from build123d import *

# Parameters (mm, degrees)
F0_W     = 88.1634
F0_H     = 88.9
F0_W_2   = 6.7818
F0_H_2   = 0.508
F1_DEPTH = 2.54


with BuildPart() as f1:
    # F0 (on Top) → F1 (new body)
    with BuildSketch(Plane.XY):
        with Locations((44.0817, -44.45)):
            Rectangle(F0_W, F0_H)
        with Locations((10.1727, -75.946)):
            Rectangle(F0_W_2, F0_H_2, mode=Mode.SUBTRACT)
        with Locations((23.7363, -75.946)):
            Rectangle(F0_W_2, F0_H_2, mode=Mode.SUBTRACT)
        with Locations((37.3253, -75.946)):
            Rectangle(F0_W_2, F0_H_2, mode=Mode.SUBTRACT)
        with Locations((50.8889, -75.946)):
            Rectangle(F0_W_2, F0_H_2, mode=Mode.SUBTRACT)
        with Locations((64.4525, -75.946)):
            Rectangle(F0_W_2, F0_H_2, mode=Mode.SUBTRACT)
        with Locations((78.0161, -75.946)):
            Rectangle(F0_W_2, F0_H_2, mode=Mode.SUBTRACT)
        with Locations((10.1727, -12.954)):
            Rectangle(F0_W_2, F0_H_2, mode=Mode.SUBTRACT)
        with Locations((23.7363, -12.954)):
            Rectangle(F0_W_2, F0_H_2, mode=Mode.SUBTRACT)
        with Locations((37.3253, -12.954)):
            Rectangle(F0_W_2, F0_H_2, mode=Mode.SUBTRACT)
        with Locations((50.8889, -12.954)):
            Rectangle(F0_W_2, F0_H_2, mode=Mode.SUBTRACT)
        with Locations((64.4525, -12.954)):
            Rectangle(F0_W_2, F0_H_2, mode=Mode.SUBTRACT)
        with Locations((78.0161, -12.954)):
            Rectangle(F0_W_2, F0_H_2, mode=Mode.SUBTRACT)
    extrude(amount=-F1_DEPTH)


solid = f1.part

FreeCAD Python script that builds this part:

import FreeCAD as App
import Part
import Sketcher
from FreeCAD import Vector
Q = App.Units.Quantity


def add_polygon(sketch, points):
    """Adds a closed chain of lines whose ends are joined by coincident constraints."""
    first, n = sketch.GeometryCount, len(points)
    for a, b in zip(points, points[1:] + points[:1]):
        sketch.addGeometry(Part.LineSegment(App.Vector(*a, 0), App.Vector(*b, 0)), False)
    for i in range(n):
        sketch.addConstraint(Sketcher.Constraint("Coincident", first + i, 2, first + (i + 1) % n, 1))

doc = App.newDocument("Part")
body = doc.addObject("PartDesign::Body", "Body")

# Sketch on XY plane
sketch1 = doc.addObject("Sketcher::SketchObject", "Sketch")
body.addObject(sketch1)
sketch1.AttachmentSupport = (doc.XY_Plane, [""])
sketch1.MapMode = "FlatFace"
add_polygon(sketch1, [(0, 0), (0, -88.9), (88.2, -88.9), (88.2, 0)])  # lines 0-3
add_polygon(sketch1, [(13.6, -76.2), (6.8, -76.2), (6.8, -75.7), (13.6, -75.7)])  # lines 4-7
add_polygon(sketch1, [(27.1, -76.2), (20.3, -76.2), (20.3, -75.7), (27.1, -75.7)])  # lines 8-11
add_polygon(sketch1, [(40.7, -76.2), (33.9, -76.2), (33.9, -75.7), (40.7, -75.7)])  # lines 12-15
add_polygon(sketch1, [(54.3, -76.2), (47.5, -76.2), (47.5, -75.7), (54.3, -75.7)])  # lines 16-19
add_polygon(sketch1, [(67.8, -76.2), (61.1, -76.2), (61.1, -75.7), (67.8, -75.7)])  # lines 20-23
add_polygon(sketch1, [(81.4, -76.2), (74.6, -76.2), (74.6, -75.7), (81.4, -75.7)])  # lines 24-27
add_polygon(sketch1, [(13.6, -13.2), (6.8, -13.2), (6.8, -12.7), (13.6, -12.7)])  # lines 28-31
add_polygon(sketch1, [(27.1, -13.2), (20.3, -13.2), (20.3, -12.7), (27.1, -12.7)])  # lines 32-35
add_polygon(sketch1, [(40.7, -13.2), (33.9, -13.2), (33.9, -12.7), (40.7, -12.7)])  # lines 36-39
add_polygon(sketch1, [(54.3, -13.2), (47.5, -13.2), (47.5, -12.7), (54.3, -12.7)])  # lines 40-43
add_polygon(sketch1, [(67.8, -13.2), (61.1, -13.2), (61.1, -12.7), (67.8, -12.7)])  # lines 44-47
add_polygon(sketch1, [(81.4, -13.2), (74.6, -13.2), (74.6, -12.7), (81.4, -12.7)])  # lines 48-51
sketch1.addConstraint(Sketcher.Constraint("Vertical", 0))
sketch1.addConstraint(Sketcher.Constraint("Horizontal", 1))
sketch1.addConstraint(Sketcher.Constraint("Vertical", 2))
sketch1.addConstraint(Sketcher.Constraint("Horizontal", 3))
sketch1.addConstraint(Sketcher.Constraint("Horizontal", 4))
sketch1.addConstraint(Sketcher.Constraint("Vertical", 5))
sketch1.addConstraint(Sketcher.Constraint("Horizontal", 6))
sketch1.addConstraint(Sketcher.Constraint("Vertical", 7))
sketch1.addConstraint(Sketcher.Constraint("Horizontal", 8))
sketch1.addConstraint(Sketcher.Constraint("Vertical", 9))
sketch1.addConstraint(Sketcher.Constraint("Horizontal", 10))
sketch1.addConstraint(Sketcher.Constraint("Vertical", 11))
sketch1.addConstraint(Sketcher.Constraint("Horizontal", 12))
sketch1.addConstraint(Sketcher.Constraint("Vertical", 13))
sketch1.addConstraint(Sketcher.Constraint("Horizontal", 14))
sketch1.addConstraint(Sketcher.Constraint("Vertical", 15))
sketch1.addConstraint(Sketcher.Constraint("Horizontal", 16))
sketch1.addConstraint(Sketcher.Constraint("Vertical", 17))
sketch1.addConstraint(Sketcher.Constraint("Horizontal", 18))
sketch1.addConstraint(Sketcher.Constraint("Vertical", 19))
sketch1.addConstraint(Sketcher.Constraint("Horizontal", 20))
sketch1.addConstraint(Sketcher.Constraint("Vertical", 21))
sketch1.addConstraint(Sketcher.Constraint("Horizontal", 22))
sketch1.addConstraint(Sketcher.Constraint("Vertical", 23))
sketch1.addConstraint(Sketcher.Constraint("Horizontal", 24))
sketch1.addConstraint(Sketcher.Constraint("Vertical", 25))
sketch1.addConstraint(Sketcher.Constraint("Horizontal", 26))
sketch1.addConstraint(Sketcher.Constraint("Vertical", 27))
sketch1.addConstraint(Sketcher.Constraint("Horizontal", 28))
sketch1.addConstraint(Sketcher.Constraint("Vertical", 29))
sketch1.addConstraint(Sketcher.Constraint("Horizontal", 30))
sketch1.addConstraint(Sketcher.Constraint("Vertical", 31))
sketch1.addConstraint(Sketcher.Constraint("Horizontal", 32))
sketch1.addConstraint(Sketcher.Constraint("Vertical", 33))
sketch1.addConstraint(Sketcher.Constraint("Horizontal", 34))
sketch1.addConstraint(Sketcher.Constraint("Vertical", 35))
sketch1.addConstraint(Sketcher.Constraint("Horizontal", 36))
sketch1.addConstraint(Sketcher.Constraint("Vertical", 37))
sketch1.addConstraint(Sketcher.Constraint("Horizontal", 38))
sketch1.addConstraint(Sketcher.Constraint("Vertical", 39))
sketch1.addConstraint(Sketcher.Constraint("Horizontal", 40))
sketch1.addConstraint(Sketcher.Constraint("Vertical", 41))
sketch1.addConstraint(Sketcher.Constraint("Horizontal", 42))
sketch1.addConstraint(Sketcher.Constraint("Vertical", 43))
sketch1.addConstraint(Sketcher.Constraint("Horizontal", 44))
sketch1.addConstraint(Sketcher.Constraint("Vertical", 45))
sketch1.addConstraint(Sketcher.Constraint("Horizontal", 46))
sketch1.addConstraint(Sketcher.Constraint("Vertical", 47))
sketch1.addConstraint(Sketcher.Constraint("Horizontal", 48))
sketch1.addConstraint(Sketcher.Constraint("Vertical", 49))
sketch1.addConstraint(Sketcher.Constraint("Horizontal", 50))
sketch1.addConstraint(Sketcher.Constraint("Vertical", 51))
sketch1.addConstraint(Sketcher.Constraint("Coincident", 3, 2, -1, 1))
sketch1.addConstraint(Sketcher.Constraint("Horizontal", 7, 2, 8, 2))
sketch1.addConstraint(Sketcher.Constraint("Horizontal", 6, 2, 9, 2))
sketch1.addConstraint(Sketcher.Constraint("Horizontal", 11, 2, 12, 2))
sketch1.addConstraint(Sketcher.Constraint("Horizontal", 10, 2, 13, 2))
sketch1.addConstraint(Sketcher.Constraint("Horizontal", 15, 2, 16, 2))
sketch1.addConstraint(Sketcher.Constraint("Horizontal", 14, 2, 17, 2))
sketch1.addConstraint(Sketcher.Constraint("Horizontal", 19, 2, 20, 2))
sketch1.addConstraint(Sketcher.Constraint("Horizontal", 18, 2, 21, 2))
sketch1.addConstraint(Sketcher.Constraint("Horizontal", 23, 2, 24, 2))
sketch1.addConstraint(Sketcher.Constraint("Horizontal", 22, 2, 25, 2))
sketch1.addConstraint(Sketcher.Constraint("Horizontal", 31, 2, 32, 2))
sketch1.addConstraint(Sketcher.Constraint("Horizontal", 30, 2, 33, 2))
sketch1.addConstraint(Sketcher.Constraint("Horizontal", 35, 2, 36, 2))
sketch1.addConstraint(Sketcher.Constraint("Horizontal", 34, 2, 37, 2))
sketch1.addConstraint(Sketcher.Constraint("Horizontal", 39, 2, 40, 2))
sketch1.addConstraint(Sketcher.Constraint("Horizontal", 38, 2, 41, 2))
sketch1.addConstraint(Sketcher.Constraint("Horizontal", 43, 2, 44, 2))
sketch1.addConstraint(Sketcher.Constraint("Horizontal", 42, 2, 45, 2))
sketch1.addConstraint(Sketcher.Constraint("Horizontal", 47, 2, 48, 2))
sketch1.addConstraint(Sketcher.Constraint("Horizontal", 46, 2, 49, 2))
sketch1.addConstraint(Sketcher.Constraint("Vertical", 5, 2, 28, 2))
sketch1.addConstraint(Sketcher.Constraint("Vertical", 7, 2, 30, 2))
sketch1.addConstraint(Sketcher.Constraint("Vertical", 9, 2, 32, 2))
sketch1.addConstraint(Sketcher.Constraint("Vertical", 11, 2, 34, 2))
sketch1.addConstraint(Sketcher.Constraint("Vertical", 13, 2, 36, 2))
sketch1.addConstraint(Sketcher.Constraint("Vertical", 15, 2, 38, 2))
sketch1.addConstraint(Sketcher.Constraint("Vertical", 17, 2, 40, 2))
sketch1.addConstraint(Sketcher.Constraint("Vertical", 19, 2, 42, 2))
sketch1.addConstraint(Sketcher.Constraint("Vertical", 21, 2, 44, 2))
sketch1.addConstraint(Sketcher.Constraint("Vertical", 23, 2, 46, 2))
sketch1.addConstraint(Sketcher.Constraint("Vertical", 25, 2, 48, 2))
sketch1.addConstraint(Sketcher.Constraint("Vertical", 27, 2, 50, 2))
sketch1.addConstraint(Sketcher.Constraint("Equal", 6, 8))
sketch1.addConstraint(Sketcher.Constraint("Equal", 10, 12))
sketch1.addConstraint(Sketcher.Constraint("Equal", 14, 16))
sketch1.addConstraint(Sketcher.Constraint("Equal", 18, 20))
sketch1.addConstraint(Sketcher.Constraint("Equal", 22, 24))
sketch1.addConstraint(Sketcher.Constraint("Equal", 27, 29))
sketch1.addConstraint(Sketcher.Constraint("DistanceY", 0, 2, 0, 1, Q("3.5 in")))
sketch1.addConstraint(Sketcher.Constraint("DistanceY", 4, 2, -1, 1, Q("3 in")))
sketch1.addConstraint(Sketcher.Constraint("DistanceY", 5, 1, 5, 2, Q("0.02 in")))
sketch1.addConstraint(Sketcher.Constraint("DistanceY", 29, 2, -1, 1, Q("0.5 in")))
sketch1.addConstraint(Sketcher.Constraint("DistanceX", 1, 1, 1, 2, Q("3.471 in")))
sketch1.addConstraint(Sketcher.Constraint("DistanceX", 4, 2, 4, 1, Q("0.267 in")))
sketch1.addConstraint(Sketcher.Constraint("DistanceX", -1, 1, 16, 2, Q("1.87 in")))
sketch1.addConstraint(Sketcher.Constraint("DistanceX", -1, 1, 4, 2, Q("0.267 in")))
sketch1.addConstraint(Sketcher.Constraint("DistanceX", -1, 1, 8, 2, Q("0.801 in")))
sketch1.addConstraint(Sketcher.Constraint("DistanceX", -1, 1, 12, 2, Q("1.336 in")))
sketch1.addConstraint(Sketcher.Constraint("DistanceX", -1, 1, 20, 2, Q("2.404 in")))
sketch1.addConstraint(Sketcher.Constraint("DistanceX", -1, 1, 24, 2, Q("2.938 in")))
pad1 = doc.addObject("PartDesign::Pad", "Pad")
body.addObject(pad1)
pad1.Profile = sketch1
pad1.Length = Q("0.1 in")
pad1.Reversed = True

doc.recompute()
